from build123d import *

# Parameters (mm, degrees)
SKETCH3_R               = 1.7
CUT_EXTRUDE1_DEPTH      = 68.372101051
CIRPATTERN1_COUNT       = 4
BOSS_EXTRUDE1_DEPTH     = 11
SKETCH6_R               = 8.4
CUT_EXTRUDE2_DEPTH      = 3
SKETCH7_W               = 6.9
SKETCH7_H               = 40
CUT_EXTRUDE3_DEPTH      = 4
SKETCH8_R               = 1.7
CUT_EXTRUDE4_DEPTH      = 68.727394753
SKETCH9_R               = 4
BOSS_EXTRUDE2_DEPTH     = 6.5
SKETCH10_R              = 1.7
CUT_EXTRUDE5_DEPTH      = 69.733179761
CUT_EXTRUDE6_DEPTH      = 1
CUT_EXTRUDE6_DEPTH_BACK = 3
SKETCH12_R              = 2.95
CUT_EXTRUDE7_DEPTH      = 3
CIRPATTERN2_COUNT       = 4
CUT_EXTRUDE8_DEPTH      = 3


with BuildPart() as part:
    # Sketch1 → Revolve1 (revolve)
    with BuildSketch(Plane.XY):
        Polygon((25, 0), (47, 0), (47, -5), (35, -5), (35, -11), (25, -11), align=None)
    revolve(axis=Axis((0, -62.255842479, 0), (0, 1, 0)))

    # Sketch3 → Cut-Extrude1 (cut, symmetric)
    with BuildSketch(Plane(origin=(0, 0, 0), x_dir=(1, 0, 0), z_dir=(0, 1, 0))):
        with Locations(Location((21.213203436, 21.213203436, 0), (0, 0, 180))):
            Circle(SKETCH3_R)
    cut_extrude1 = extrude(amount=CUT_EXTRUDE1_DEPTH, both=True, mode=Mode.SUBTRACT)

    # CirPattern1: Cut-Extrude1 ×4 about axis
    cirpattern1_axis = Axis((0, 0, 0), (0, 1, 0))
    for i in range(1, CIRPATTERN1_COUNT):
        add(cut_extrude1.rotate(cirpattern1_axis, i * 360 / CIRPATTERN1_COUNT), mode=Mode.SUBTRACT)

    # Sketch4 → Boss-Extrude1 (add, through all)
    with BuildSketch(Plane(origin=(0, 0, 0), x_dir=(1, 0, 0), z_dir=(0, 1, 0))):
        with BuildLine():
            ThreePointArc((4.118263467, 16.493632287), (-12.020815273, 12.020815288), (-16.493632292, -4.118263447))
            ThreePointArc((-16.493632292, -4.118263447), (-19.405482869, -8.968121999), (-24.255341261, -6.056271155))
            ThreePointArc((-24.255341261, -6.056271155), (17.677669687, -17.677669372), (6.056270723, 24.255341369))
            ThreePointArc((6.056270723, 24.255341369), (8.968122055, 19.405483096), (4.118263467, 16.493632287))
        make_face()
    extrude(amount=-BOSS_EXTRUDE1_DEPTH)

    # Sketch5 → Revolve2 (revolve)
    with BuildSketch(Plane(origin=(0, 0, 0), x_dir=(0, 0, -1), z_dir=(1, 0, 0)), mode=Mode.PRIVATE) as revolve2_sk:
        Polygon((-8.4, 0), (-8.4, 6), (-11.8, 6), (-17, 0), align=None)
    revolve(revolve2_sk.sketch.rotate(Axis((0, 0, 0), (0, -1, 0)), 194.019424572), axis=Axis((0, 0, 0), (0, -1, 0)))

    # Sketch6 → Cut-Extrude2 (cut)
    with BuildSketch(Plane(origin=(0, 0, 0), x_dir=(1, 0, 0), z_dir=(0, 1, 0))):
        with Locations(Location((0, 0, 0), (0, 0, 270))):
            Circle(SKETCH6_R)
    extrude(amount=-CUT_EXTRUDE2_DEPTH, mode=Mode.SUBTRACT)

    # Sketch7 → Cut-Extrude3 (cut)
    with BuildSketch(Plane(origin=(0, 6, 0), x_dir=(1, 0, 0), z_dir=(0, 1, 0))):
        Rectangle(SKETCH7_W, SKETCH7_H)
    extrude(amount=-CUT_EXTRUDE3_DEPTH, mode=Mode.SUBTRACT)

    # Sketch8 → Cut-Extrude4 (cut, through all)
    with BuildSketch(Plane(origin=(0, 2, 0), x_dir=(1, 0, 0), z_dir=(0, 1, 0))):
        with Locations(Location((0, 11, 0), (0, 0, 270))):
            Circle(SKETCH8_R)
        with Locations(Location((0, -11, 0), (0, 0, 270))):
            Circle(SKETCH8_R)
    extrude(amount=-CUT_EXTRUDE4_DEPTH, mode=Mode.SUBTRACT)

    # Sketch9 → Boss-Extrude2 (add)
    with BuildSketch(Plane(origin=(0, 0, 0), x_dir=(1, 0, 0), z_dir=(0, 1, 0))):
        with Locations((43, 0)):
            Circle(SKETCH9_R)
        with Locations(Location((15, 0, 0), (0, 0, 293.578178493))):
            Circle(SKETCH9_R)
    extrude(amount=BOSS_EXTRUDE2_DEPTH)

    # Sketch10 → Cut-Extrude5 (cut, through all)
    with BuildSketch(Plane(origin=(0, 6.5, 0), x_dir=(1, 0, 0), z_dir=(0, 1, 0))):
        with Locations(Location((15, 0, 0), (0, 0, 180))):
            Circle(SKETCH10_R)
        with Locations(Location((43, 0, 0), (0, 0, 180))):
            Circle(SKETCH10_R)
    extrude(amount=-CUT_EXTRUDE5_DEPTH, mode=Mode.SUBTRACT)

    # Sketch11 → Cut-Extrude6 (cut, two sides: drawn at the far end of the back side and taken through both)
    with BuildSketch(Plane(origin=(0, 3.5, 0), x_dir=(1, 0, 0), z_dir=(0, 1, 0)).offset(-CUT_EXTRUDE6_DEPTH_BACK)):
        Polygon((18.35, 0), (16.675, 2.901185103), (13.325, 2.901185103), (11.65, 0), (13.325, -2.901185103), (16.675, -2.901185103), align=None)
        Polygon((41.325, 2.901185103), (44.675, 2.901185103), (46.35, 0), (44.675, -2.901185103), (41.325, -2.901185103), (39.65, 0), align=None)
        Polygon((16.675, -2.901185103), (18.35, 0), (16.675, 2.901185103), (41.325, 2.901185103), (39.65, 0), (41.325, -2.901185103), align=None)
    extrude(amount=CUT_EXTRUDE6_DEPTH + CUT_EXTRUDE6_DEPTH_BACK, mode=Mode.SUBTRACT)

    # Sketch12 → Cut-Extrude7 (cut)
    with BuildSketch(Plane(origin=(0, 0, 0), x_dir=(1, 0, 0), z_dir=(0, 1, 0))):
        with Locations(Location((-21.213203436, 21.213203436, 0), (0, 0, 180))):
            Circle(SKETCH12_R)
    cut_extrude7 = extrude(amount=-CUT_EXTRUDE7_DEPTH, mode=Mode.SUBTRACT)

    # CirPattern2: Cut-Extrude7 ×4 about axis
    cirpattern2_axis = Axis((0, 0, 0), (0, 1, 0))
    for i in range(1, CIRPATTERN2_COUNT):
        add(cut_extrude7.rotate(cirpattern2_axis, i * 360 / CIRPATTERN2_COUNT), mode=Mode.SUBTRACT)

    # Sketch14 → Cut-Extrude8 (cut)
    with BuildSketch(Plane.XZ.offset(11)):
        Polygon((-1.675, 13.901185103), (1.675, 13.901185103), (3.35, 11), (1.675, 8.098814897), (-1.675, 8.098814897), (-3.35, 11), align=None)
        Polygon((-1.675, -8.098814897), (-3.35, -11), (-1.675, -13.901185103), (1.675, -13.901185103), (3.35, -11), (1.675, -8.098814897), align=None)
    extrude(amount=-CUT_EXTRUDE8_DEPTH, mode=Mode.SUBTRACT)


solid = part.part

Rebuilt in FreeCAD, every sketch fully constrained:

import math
import FreeCAD as App
import Part
import Sketcher
from FreeCAD import Vector
Q = App.Units.Quantity


def add_polygon(sketch, points):
    """Adds a closed chain of lines whose ends are joined by coincident constraints."""
    first, n = sketch.GeometryCount, len(points)
    for a, b in zip(points, points[1:] + points[:1]):
        sketch.addGeometry(Part.LineSegment(App.Vector(*a, 0), App.Vector(*b, 0)), False)
    for i in range(n):
        sketch.addConstraint(Sketcher.Constraint("Coincident", first + i, 2, first + (i + 1) % n, 1))

doc = App.newDocument("Part")
body = doc.addObject("PartDesign::Body", "Body")

# Sketch on XY plane
sketch1 = body.newObject("Sketcher::SketchObject", "Sketch")
sketch1.AttachmentSupport = (doc.getObject("XY_Plane"), [""])
sketch1.MapMode = "FlatFace"
add_polygon(sketch1, [(47, 0), (25, 0), (25, -11), (35, -11), (35, -5), (47, -5)])  # lines 0-5
sketch1.addConstraint([
    Sketcher.Constraint("Horizontal", 0),
    Sketcher.Constraint("Vertical", 1),
    Sketcher.Constraint("Horizontal", 2),
    Sketcher.Constraint("Vertical", 3),
    Sketcher.Constraint("Horizontal", 4),
    Sketcher.Constraint("Vertical", 5),
    Sketcher.Constraint("PointOnObject", 0, 2, -1),
    Sketcher.Constraint("DistanceX", 0, 2, 0, 1, 22.0),
    Sketcher.Constraint("DistanceX", 2, 1, 2, 2, 10.0),
    Sketcher.Constraint("DistanceY", 1, 2, 1, 1, 11.0),
    Sketcher.Constraint("DistanceY", 3, 1, 3, 2, 6.0),
    Sketcher.Constraint("DistanceX", -1, 1, 0, 2, 25.0),
])
revolution = body.newObject("PartDesign::Revolution", "Revolution")
revolution.Profile = sketch1
revolution.ReferenceAxis = (sketch1, ["V_Axis"])
revolution.Angle = 360

# Sketch on XZ plane
sketch2 = body.newObject("Sketcher::SketchObject", "Sketch001")
sketch2.AttachmentSupport = (doc.getObject("XZ_Plane"), [""])
sketch2.MapMode = "FlatFace"
sketch2.addGeometry(Part.Circle(Vector(21.2, -21.2, 0), Vector(0, 0, 1), 1.7), False)
sketch2.addConstraint([
    Sketcher.Constraint("Diameter", 0, 3.4),
    Sketcher.Constraint("DistanceX", -1, 1, 0, 3, 21.213203),
    Sketcher.Constraint("DistanceY", 0, 3, -1, 1, 21.213203),
])
pocket1 = body.newObject("PartDesign::Pocket", "Pocket")
pocket1.Profile = sketch2
pocket1.Length = 136.744202
pocket1.Midplane = True
doc.recompute()

polarpattern = body.newObject("PartDesign::PolarPattern", "PolarPattern")
polarpattern.Originals = [pocket1]
polarpattern.Axis = (doc.getObject("Y_Axis"), [""])
polarpattern.Angle = 360
polarpattern.Occurrences = 4
body.Tip = polarpattern

# Sketch on XZ plane
sketch3 = body.newObject("Sketcher::SketchObject", "Sketch002")
sketch3.AttachmentSupport = (doc.getObject("XZ_Plane"), [""])
sketch3.MapMode = "FlatFace"
sketch3.addGeometry([
    Part.ArcOfCircle(Part.Circle(Vector(0, 0, 0), Vector(0, 0, 1), 17), math.radians(166), math.radians(284)),
    Part.ArcOfCircle(Part.Circle(Vector(-20.4, 5.1, 0), Vector(0, 0, 1), 4), math.radians(-14), math.radians(166)),
    Part.ArcOfCircle(Part.Circle(Vector(0, 0, 0), Vector(0, 0, 1), 25), math.radians(-76), math.radians(166)),
    Part.ArcOfCircle(Part.Circle(Vector(5.1, -20.4, 0), Vector(0, 0, 1), 4), math.radians(-76), math.radians(104)),
], False)
sketch3.addConstraint([
    Sketcher.Constraint("Tangent", 0, 1, 1, 1),
    Sketcher.Constraint("Tangent", 1, 2, 2, 2),
    Sketcher.Constraint("Tangent", 2, 1, 3, 1),
    Sketcher.Constraint("Tangent", 3, 2, 0, 2),
    Sketcher.Constraint("Coincident", 0, 3, -1, 1),
    Sketcher.Constraint("Coincident", 2, 3, -1, 1),
    Sketcher.Constraint("Radius", 0, 17.0),
    Sketcher.Constraint("Radius", 1, 4.0),
    Sketcher.Constraint("DistanceX", 0, 1, 3, 3, 21.5809),
    Sketcher.Constraint("DistanceX", 1, 2, -1, 1, 24.255341),
])
pad1 = body.newObject("PartDesign::Pad", "Pad")
pad1.Profile = sketch3
pad1.Length = 11

# Sketch on YZ plane
sketch4 = body.newObject("Sketcher::SketchObject", "Sketch003")
sketch4.AttachmentSupport = (doc.getObject("YZ_Plane"), [""])
sketch4.MapMode = "FlatFace"
add_polygon(sketch4, [(0, 8.4), (6, 8.4), (6, 11.8), (0, 17)])  # lines 0-3
sketch4.addConstraint([
    Sketcher.Constraint("Horizontal", 0),
    Sketcher.Constraint("Vertical", 1),
    Sketcher.Constraint("Vertical", 3),
    Sketcher.Constraint("PointOnObject", 2, 2, -2),
    Sketcher.Constraint("DistanceX", 0, 1, 0, 2, 6.0),
    Sketcher.Constraint("DistanceY", 1, 1, 1, 2, 3.4),
    Sketcher.Constraint("DistanceY", 3, 2, 3, 1, 8.6),
    Sketcher.Constraint("DistanceY", -1, 1, 2, 2, 17.0),
])
revolution2 = body.newObject("PartDesign::Revolution", "Revolution001")
revolution2.Profile = sketch4
revolution2.ReferenceAxis = (sketch4, ["H_Axis"])
revolution2.Angle = 360

# Sketch on XZ plane
sketch5 = body.newObject("Sketcher::SketchObject", "Sketch004")
sketch5.AttachmentSupport = (doc.getObject("XZ_Plane"), [""])
sketch5.MapMode = "FlatFace"
sketch5.addGeometry(Part.Circle(Vector(0, 0, 0), Vector(0, 0, 1), 8), False)
sketch5.addConstraint([
    Sketcher.Constraint("Coincident", 0, 3, -1, 1),
    Sketcher.Constraint("Diameter", 0, 16.8),
])
pocket2 = body.newObject("PartDesign::Pocket", "Pocket001")
pocket2.Profile = sketch5
pocket2.Length = 3
pocket2.Reversed = True

# Sketch on XZ plane
sketch6 = body.newObject("Sketcher::SketchObject", "Sketch005")
sketch6.AttachmentSupport = (doc.getObject("XZ_Plane"), [""])
sketch6.MapMode = "FlatFace"
sketch6.AttachmentOffset = App.Placement(Vector(0, 0, -6), App.Rotation())
add_polygon(sketch6, [(-3, -20), (-3, 20), (3, 20), (3, -20)])  # lines 0-3
sketch6.addConstraint([
    Sketcher.Constraint("Vertical", 0),
    Sketcher.Constraint("Horizontal", 1),
    Sketcher.Constraint("Vertical", 2),
    Sketcher.Constraint("Horizontal", 3),
    Sketcher.Constraint("Symmetric", 0, 2, 2, 2, -1, 1),
    Sketcher.Constraint("DistanceY", 0, 1, 0, 2, 40.0),
    Sketcher.Constraint("DistanceX", 1, 1, 1, 2, 6.9),
])
pocket3 = body.newObject("PartDesign::Pocket", "Pocket002")
pocket3.Profile = sketch6
pocket3.Length = 4
pocket3.Reversed = True

# Sketch on XZ plane
sketch7 = body.newObject("Sketcher::SketchObject", "Sketch006")
sketch7.AttachmentSupport = (doc.getObject("XZ_Plane"), [""])
sketch7.MapMode = "FlatFace"
sketch7.AttachmentOffset = App.Placement(Vector(0, 0, -2), App.Rotation())
sketch7.addGeometry([
    Part.Circle(Vector(0, -11, 0), Vector(0, 0, 1), 1.7),
    Part.Circle(Vector(0, 11, 0), Vector(0, 0, 1), 1.7),
], False)
sketch7.addConstraint([
    Sketcher.Constraint("Equal", 0, 1),
    Sketcher.Constraint("Symmetric", 0, 3, 1, 3, -1, 1),
    Sketcher.Constraint("PointOnObject", 0, 3, -2),
    Sketcher.Constraint("Diameter", 0, 3.4),
    Sketcher.Constraint("DistanceY", 0, 3, -1, 1, 11.0),
])
pocket4 = body.newObject("PartDesign::Pocket", "Pocket003")
pocket4.Profile = sketch7
pocket4.Type = "ThroughAll"
pocket4.Reversed = True

# Sketch on XZ plane
sketch8 = body.newObject("Sketcher::SketchObject", "Sketch007")
sketch8.AttachmentSupport = (doc.getObject("XZ_Plane"), [""])
sketch8.MapMode = "FlatFace"
sketch8.addGeometry([
    Part.Circle(Vector(43, 0, 0), Vector(0, 0, 1), 4),
    Part.Circle(Vector(15, 0, 0), Vector(0, 0, 1), 4),
], False)
sketch8.addConstraint([
    Sketcher.Constraint("Equal", 0, 1),
    Sketcher.Constraint("PointOnObject", 0, 3, -1),
    Sketcher.Constraint("PointOnObject", 1, 3, -1),
    Sketcher.Constraint("Diameter", 0, 8.0),
    Sketcher.Constraint("DistanceX", -1, 1, 0, 3, 43.0),
    Sketcher.Constraint("DistanceX", -1, 1, 1, 3, 15.0),
])
pad2 = body.newObject("PartDesign::Pad", "Pad001")
pad2.Profile = sketch8
pad2.Length = 6.5
pad2.Reversed = True

# Sketch on XZ plane
sketch9 = body.newObject("Sketcher::SketchObject", "Sketch008")
sketch9.AttachmentSupport = (doc.getObject("XZ_Plane"), [""])
sketch9.MapMode = "FlatFace"
sketch9.AttachmentOffset = App.Placement(Vector(0, 0, -6.5), App.Rotation())
sketch9.addGeometry([
    Part.Circle(Vector(15, 0, 0), Vector(0, 0, 1), 1.7),
    Part.Circle(Vector(43, 0, 0), Vector(0, 0, 1), 1.7),
], False)
sketch9.addConstraint([
    Sketcher.Constraint("Equal", 0, 1),
    Sketcher.Constraint("PointOnObject", 0, 3, -1),
    Sketcher.Constraint("PointOnObject", 1, 3, -1),
    Sketcher.Constraint("Diameter", 0, 3.4),
    Sketcher.Constraint("DistanceX", -1, 1, 0, 3, 15.0),
    Sketcher.Constraint("DistanceX", -1, 1, 1, 3, 43.0),
])
pocket5 = body.newObject("PartDesign::Pocket", "Pocket004")
pocket5.Profile = sketch9
pocket5.Type = "ThroughAll"
pocket5.Reversed = True

# Sketch on XZ plane
sketch10 = body.newObject("Sketcher::SketchObject", "Sketch009")
sketch10.AttachmentSupport = (doc.getObject("XZ_Plane"), [""])
sketch10.MapMode = "FlatFace"
sketch10.AttachmentOffset = App.Placement(Vector(0, 0, -3.5), App.Rotation())
add_polygon(sketch10, [(13.3, -2.9), (11.7, 0), (13.3, 2.9), (44.7, 2.9), (46.4, 0), (44.7, -2.9)])  # lines 0-5
sketch10.addConstraint([
    Sketcher.Constraint("Horizontal", 2),
    Sketcher.Constraint("Horizontal", 5),
    Sketcher.Constraint("Symmetric", 2, 2, 4, 2, -1),
    Sketcher.Constraint("PointOnObject", 0, 2, -1),
    Sketcher.Constraint("PointOnObject", 3, 2, -1),
    Sketcher.Constraint("Parallel", 0, 3),
    Sketcher.Constraint("Parallel", 1, 4),
    Sketcher.Constraint("Angle", 0, Q("120 deg")),
    Sketcher.Constraint("DistanceX", 2, 1, 2, 2, 31.35),
    Sketcher.Constraint("DistanceX", 0, 2, 3, 2, 34.7),
    Sketcher.Constraint("DistanceX", -1, 1, 0, 2, 11.65),
])
pocket6 = body.newObject("PartDesign::Pocket", "Pocket005")
pocket6.Profile = sketch10
pocket6.Type = "TwoLengths"
pocket6.Length = 1
pocket6.Length2 = 3

# Sketch on XZ plane
sketch11 = body.newObject("Sketcher::SketchObject", "Sketch010")
sketch11.AttachmentSupport = (doc.getObject("XZ_Plane"), [""])
sketch11.MapMode = "FlatFace"
sketch11.addGeometry(Part.Circle(Vector(-21.2, -21.2, 0), Vector(0, 0, 1), 3), False)
sketch11.addConstraint([
    Sketcher.Constraint("Diameter", 0, 5.9),
    Sketcher.Constraint("DistanceX", 0, 3, -1, 1, 21.213203),
    Sketcher.Constraint("DistanceY", 0, 3, -1, 1, 21.213203),
])
pocket7 = body.newObject("PartDesign::Pocket", "Pocket006")
pocket7.Profile = sketch11
pocket7.Length = 3
pocket7.Reversed = True
doc.recompute()

polarpattern2 = body.newObject("PartDesign::PolarPattern", "PolarPattern001")
polarpattern2.Originals = [pocket7]
polarpattern2.Axis = (doc.getObject("Y_Axis"), [""])
polarpattern2.Angle = 360
polarpattern2.Occurrences = 4
body.Tip = polarpattern2

# Sketch on XZ plane
sketch12 = body.newObject("Sketcher::SketchObject", "Sketch011")
sketch12.AttachmentSupport = (doc.getObject("XZ_Plane"), [""])
sketch12.MapMode = "FlatFace"
sketch12.AttachmentOffset = App.Placement(Vector(0, 0, 11), App.Rotation())
add_polygon(sketch12, [(1.7, 13.9), (-1.7, 13.9), (-3.4, 11), (-1.7, 8.1), (1.7, 8.1), (3.4, 11)])  # lines 0-5
add_polygon(sketch12, [(-1.7, -8.1), (-3.4, -11), (-1.7, -13.9), (1.7, -13.9), (3.4, -11), (1.7, -8.1)])  # lines 6-11
sketch12.addConstraint([
    Sketcher.Constraint("Horizontal", 0),
    Sketcher.Constraint("Horizontal", 3),
    Sketcher.Constraint("Horizontal", 8),
    Sketcher.Constraint("Horizontal", 11),
    Sketcher.Constraint("Symmetric", 4, 2, 6, 2, -1, 1),
    Sketcher.Constraint("Symmetric", 5, 2, 7, 2, -1, 1),
    Sketcher.Constraint("Symmetric", 1, 2, 9, 2, -1, 1),
    Sketcher.Constraint("Symmetric", 2, 2, 10, 2, -1, 1),
    Sketcher.Constraint("Symmetric", 1, 2, 4, 2, -2),
    Sketcher.Constraint("Parallel", 1, 4),
    Sketcher.Constraint("Parallel", 2, 5),
    Sketcher.Constraint("Parallel", 4, 6),
    Sketcher.Constraint("Parallel", 6, 9),
    Sketcher.Constraint("Vertical", 0, 2, 2, 2),
    Sketcher.Constraint("Vertical", 3, 2, 5, 2),
    Sketcher.Constraint("Angle", 1, Q("-120 deg")),
    Sketcher.Constraint("DistanceY", -1, 1, 1, 2, 11.0),
    Sketcher.Constraint("DistanceX", 0, 2, 0, 1, 3.35),
    Sketcher.Constraint("DistanceX", 1, 2, 4, 2, 6.7),
])
pocket8 = body.newObject("PartDesign::Pocket", "Pocket007")
pocket8.Profile = sketch12
pocket8.Length = 3

doc.recompute()
